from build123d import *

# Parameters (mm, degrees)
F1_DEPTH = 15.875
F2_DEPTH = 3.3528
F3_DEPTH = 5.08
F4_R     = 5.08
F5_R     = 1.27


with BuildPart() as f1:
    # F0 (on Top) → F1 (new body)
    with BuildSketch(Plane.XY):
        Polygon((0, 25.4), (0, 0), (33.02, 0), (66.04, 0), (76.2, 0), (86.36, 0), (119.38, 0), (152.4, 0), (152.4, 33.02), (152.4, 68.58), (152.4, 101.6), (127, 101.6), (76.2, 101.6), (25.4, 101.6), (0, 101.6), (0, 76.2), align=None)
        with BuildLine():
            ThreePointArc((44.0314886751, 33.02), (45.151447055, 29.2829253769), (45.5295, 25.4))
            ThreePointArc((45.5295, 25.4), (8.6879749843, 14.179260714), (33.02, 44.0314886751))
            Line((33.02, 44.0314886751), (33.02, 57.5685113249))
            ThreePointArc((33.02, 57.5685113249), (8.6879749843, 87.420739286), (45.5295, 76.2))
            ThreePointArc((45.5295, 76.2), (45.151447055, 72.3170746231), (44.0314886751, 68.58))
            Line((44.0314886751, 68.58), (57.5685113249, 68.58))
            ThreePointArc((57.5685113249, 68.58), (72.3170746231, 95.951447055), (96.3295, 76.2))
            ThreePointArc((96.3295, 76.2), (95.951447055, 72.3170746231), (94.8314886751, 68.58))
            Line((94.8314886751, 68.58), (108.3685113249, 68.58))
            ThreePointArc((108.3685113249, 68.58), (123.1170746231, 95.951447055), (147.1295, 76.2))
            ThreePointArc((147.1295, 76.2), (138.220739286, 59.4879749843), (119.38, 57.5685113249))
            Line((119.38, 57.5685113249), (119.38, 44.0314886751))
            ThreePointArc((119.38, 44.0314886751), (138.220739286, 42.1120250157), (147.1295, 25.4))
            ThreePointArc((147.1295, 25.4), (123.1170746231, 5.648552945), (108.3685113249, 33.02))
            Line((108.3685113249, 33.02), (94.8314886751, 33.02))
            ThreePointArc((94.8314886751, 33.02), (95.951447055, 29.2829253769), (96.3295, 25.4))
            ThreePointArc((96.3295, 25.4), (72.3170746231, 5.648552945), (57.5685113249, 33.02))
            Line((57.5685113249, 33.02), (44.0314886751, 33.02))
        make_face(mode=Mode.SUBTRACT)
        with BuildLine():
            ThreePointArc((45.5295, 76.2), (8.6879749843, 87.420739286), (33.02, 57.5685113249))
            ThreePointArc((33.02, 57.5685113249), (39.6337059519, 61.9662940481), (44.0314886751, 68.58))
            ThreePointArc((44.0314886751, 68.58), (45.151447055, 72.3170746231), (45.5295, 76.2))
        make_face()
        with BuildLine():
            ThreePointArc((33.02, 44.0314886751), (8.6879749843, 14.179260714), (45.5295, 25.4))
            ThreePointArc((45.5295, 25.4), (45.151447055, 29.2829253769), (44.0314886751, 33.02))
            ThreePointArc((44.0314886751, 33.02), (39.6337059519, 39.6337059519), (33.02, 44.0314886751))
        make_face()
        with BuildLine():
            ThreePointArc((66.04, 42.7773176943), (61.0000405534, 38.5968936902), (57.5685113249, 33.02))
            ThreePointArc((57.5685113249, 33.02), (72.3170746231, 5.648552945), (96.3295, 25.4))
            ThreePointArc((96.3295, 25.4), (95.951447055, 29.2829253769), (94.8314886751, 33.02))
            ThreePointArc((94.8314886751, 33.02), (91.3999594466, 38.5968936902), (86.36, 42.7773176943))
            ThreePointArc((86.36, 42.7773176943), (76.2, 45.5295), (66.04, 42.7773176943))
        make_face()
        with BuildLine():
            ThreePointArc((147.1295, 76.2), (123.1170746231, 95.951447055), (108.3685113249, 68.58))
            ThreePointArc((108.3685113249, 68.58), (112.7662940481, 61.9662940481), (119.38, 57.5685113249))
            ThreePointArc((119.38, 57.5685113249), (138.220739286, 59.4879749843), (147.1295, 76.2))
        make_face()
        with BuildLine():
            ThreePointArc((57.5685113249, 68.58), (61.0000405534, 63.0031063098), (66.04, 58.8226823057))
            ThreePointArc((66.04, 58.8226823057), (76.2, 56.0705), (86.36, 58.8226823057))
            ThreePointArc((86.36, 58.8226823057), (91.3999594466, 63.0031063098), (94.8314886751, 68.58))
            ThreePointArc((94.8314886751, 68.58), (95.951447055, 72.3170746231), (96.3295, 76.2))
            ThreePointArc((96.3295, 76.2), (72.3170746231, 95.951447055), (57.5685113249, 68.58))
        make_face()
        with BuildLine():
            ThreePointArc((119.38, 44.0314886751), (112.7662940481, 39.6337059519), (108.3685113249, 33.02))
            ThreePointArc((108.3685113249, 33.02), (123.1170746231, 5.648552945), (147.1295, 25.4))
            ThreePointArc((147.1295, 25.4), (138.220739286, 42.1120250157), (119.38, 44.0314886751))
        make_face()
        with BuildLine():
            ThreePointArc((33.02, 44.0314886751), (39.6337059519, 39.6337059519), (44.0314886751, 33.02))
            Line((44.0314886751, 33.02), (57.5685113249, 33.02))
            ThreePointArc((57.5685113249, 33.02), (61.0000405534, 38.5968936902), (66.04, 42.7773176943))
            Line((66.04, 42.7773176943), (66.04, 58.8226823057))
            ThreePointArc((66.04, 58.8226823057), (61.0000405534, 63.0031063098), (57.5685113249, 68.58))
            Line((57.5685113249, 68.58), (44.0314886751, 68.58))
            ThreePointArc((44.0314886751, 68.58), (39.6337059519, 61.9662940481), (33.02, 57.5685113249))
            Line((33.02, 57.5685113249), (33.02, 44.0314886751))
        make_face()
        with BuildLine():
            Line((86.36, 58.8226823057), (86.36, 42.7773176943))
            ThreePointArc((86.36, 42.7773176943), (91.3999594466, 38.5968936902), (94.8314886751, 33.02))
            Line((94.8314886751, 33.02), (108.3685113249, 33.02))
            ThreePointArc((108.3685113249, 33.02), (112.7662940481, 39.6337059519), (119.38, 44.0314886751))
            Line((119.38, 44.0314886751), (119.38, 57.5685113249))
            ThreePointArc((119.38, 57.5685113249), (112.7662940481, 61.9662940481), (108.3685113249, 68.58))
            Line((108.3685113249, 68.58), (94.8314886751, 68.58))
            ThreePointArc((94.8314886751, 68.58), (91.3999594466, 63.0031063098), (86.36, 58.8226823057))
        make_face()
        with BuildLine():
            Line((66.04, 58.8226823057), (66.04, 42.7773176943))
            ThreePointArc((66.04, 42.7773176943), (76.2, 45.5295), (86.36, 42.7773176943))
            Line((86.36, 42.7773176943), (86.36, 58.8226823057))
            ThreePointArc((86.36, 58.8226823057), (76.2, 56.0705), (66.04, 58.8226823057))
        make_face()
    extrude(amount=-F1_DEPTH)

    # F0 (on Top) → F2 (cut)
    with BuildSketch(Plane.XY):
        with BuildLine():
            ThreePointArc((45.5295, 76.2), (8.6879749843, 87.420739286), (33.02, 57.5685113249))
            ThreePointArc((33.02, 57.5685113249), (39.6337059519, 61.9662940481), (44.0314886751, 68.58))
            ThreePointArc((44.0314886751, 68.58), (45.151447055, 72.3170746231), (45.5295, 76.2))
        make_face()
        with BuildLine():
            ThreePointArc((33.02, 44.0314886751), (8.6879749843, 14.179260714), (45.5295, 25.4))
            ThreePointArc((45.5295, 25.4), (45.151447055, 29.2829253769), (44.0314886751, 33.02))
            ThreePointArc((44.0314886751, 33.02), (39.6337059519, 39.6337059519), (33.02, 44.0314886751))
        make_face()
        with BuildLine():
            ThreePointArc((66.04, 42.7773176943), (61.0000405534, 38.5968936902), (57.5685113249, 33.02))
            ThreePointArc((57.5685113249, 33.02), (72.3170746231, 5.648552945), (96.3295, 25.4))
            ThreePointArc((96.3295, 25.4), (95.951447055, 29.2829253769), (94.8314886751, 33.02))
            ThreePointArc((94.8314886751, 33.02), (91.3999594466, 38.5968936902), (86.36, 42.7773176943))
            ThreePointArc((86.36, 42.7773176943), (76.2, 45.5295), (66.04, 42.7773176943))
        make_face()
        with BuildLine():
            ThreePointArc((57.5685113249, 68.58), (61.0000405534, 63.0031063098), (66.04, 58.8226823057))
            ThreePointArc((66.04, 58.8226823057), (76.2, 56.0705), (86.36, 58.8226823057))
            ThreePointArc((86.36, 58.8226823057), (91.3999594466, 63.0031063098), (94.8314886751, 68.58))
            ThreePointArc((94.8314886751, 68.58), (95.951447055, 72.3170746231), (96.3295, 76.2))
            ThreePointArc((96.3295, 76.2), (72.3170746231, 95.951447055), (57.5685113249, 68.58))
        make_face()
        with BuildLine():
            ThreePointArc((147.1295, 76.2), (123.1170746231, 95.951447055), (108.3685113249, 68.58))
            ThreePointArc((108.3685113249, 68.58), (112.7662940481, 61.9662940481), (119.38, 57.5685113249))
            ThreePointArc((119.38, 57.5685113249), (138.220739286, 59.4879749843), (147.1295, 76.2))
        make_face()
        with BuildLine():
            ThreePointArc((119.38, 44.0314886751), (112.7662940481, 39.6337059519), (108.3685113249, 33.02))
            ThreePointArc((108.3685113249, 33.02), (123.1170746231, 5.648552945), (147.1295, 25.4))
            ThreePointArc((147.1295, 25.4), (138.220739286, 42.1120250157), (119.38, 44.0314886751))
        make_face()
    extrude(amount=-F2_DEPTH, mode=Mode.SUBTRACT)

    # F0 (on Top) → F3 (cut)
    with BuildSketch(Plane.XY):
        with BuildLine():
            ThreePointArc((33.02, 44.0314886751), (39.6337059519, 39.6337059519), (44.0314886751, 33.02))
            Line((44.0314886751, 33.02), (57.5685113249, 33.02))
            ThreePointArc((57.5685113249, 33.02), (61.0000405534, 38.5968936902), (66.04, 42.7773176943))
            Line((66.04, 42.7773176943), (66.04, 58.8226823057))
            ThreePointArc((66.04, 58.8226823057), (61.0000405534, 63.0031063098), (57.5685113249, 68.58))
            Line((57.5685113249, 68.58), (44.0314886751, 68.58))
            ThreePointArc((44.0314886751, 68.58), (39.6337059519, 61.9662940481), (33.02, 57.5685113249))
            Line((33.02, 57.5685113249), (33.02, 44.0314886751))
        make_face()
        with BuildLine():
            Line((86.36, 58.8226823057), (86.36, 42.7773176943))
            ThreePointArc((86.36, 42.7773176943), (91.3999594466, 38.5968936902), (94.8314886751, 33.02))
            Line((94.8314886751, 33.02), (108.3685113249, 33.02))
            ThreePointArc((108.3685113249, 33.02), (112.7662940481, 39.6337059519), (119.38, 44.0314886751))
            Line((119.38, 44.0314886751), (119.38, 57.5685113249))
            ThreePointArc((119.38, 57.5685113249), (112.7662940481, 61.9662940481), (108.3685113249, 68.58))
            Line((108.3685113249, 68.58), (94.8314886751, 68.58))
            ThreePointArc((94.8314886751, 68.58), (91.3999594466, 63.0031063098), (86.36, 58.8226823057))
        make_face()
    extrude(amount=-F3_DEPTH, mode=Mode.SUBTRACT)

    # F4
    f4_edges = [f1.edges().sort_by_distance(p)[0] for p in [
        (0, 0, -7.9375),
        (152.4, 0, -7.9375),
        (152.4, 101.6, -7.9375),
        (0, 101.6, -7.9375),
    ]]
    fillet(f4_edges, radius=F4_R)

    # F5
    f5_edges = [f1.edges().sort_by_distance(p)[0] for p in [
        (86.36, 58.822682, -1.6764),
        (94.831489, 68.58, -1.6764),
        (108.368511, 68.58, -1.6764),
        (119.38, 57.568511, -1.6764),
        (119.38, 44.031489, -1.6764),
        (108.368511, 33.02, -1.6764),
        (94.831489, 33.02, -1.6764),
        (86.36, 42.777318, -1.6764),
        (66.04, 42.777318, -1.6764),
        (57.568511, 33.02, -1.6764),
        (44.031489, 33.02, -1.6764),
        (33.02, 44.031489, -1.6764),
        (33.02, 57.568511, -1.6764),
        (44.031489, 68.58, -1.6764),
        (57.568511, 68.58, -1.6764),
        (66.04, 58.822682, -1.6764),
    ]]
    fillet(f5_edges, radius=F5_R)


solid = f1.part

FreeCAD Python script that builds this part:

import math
import FreeCAD as App
import Part
import Sketcher
from FreeCAD import Vector
Q = App.Units.Quantity


def edges_at(feature, points):
    """Names of the edges that pass closest to the given points."""
    edges = feature.Shape.Edges
    near = lambda p: min(range(len(edges)), key=lambda i: edges[i].distToShape(Part.Vertex(*p))[0])
    return sorted({f"Edge{near(p) + 1}" for p in points})

doc = App.newDocument("Part")
params = doc.addObject("Spreadsheet::Sheet", "Params")
for row, (alias, value) in enumerate([
    ("sketch1_width", "6 in"),
    ("sketch1_height", "4 in"),
    ("pad1_length", "0.625 in"),
    ("pocket1_length", "0.132 in"),
    ("pocket2_length", "0.2 in"),
    ("fillet_radius", "0.2 in"),
    ("fillet2_radius", "0.05 in"),
], start=1):
    params.set(f"A{row}", alias)
    params.set(f"B{row}", "=" + value)
    params.setAlias(f"B{row}", alias)

body = doc.addObject("PartDesign::Body", "Body")

sketch1 = body.newObject("Sketcher::SketchObject", "Sketch")
sketch1.AttachmentSupport = (doc.getObject("XY_Plane"), [""])
sketch1.MapMode = "FlatFace"
sketch1.addGeometry(Part.LineSegment(Vector(0, 0, 0), Vector(152, 0, 0)), False)
sketch1.addGeometry(Part.LineSegment(Vector(152, 0, 0), Vector(152, 102, 0)), False)
sketch1.addGeometry(Part.LineSegment(Vector(152, 102, 0), Vector(0, 102, 0)), False)
sketch1.addGeometry(Part.LineSegment(Vector(0, 102, 0), Vector(0, 0, 0)), False)
sketch1.addConstraint(Sketcher.Constraint("Coincident", 0, 2, 1, 1))
sketch1.addConstraint(Sketcher.Constraint("Coincident", 1, 2, 2, 1))
sketch1.addConstraint(Sketcher.Constraint("Coincident", 2, 2, 3, 1))
sketch1.addConstraint(Sketcher.Constraint("Coincident", 3, 2, 0, 1))
sketch1.addConstraint(Sketcher.Constraint("Horizontal", 0))
sketch1.addConstraint(Sketcher.Constraint("Vertical", 1))
sketch1.addConstraint(Sketcher.Constraint("Horizontal", 2))
sketch1.addConstraint(Sketcher.Constraint("Vertical", 3))
sketch1.addConstraint(Sketcher.Constraint("Coincident", 3, 2, -1, 1))
sketch1.addConstraint(Sketcher.Constraint("DistanceX", 0, 1, 0, 2, Q("6 in")))
sketch1.addConstraint(Sketcher.Constraint("DistanceY", 1, 1, 1, 2, Q("4 in")))
sketch1.setExpression("Constraints[9]", "Params.sketch1_width")
sketch1.setExpression("Constraints[10]", "Params.sketch1_height")
pad1 = body.newObject("PartDesign::Pad", "Pad")
pad1.Profile = sketch1
pad1.setExpression("Length", "Params.pad1_length")
pad1.Reversed = True

sketch2 = body.newObject("Sketcher::SketchObject", "Sketch001")
sketch2.AttachmentSupport = (doc.getObject("XY_Plane"), [""])
sketch2.MapMode = "FlatFace"
sketch2.addGeometry(Part.ArcOfCircle(Part.Circle(Vector(25, 76, 0), Vector(0, 0, 1), 20), math.radians(0), math.radians(338)), False)
sketch2.addGeometry(Part.ArcOfCircle(Part.Circle(Vector(25, 76, 0), Vector(0, 0, 1), 20), math.radians(-22), math.radians(0)), False)
sketch2.addGeometry(Part.ArcOfCircle(Part.Circle(Vector(25, 25, 0), Vector(0, 0, 1), 20), math.radians(0), math.radians(22)), False)
sketch2.addGeometry(Part.ArcOfCircle(Part.Circle(Vector(25, 25, 0), Vector(0, 0, 1), 20), math.radians(22), math.radians(360)), False)
sketch2.addGeometry(Part.ArcOfCircle(Part.Circle(Vector(76, 25, 0), Vector(0, 0, 1), 20), math.radians(120), math.radians(158)), False)
sketch2.addGeometry(Part.ArcOfCircle(Part.Circle(Vector(76, 25, 0), Vector(0, 0, 1), 20), math.radians(158), math.radians(360)), False)
sketch2.addGeometry(Part.ArcOfCircle(Part.Circle(Vector(76, 25, 0), Vector(0, 0, 1), 20), math.radians(0), math.radians(22)), False)
sketch2.addGeometry(Part.ArcOfCircle(Part.Circle(Vector(76, 25, 0), Vector(0, 0, 1), 20), math.radians(22), math.radians(60)), False)
sketch2.addGeometry(Part.ArcOfCircle(Part.Circle(Vector(76, 25, 0), Vector(0, 0, 1), 20), math.radians(60), math.radians(120)), False)
sketch2.addGeometry(Part.ArcOfCircle(Part.Circle(Vector(76, 76, 0), Vector(0, 0, 1), 20), math.radians(-158), math.radians(-120)), False)
sketch2.addGeometry(Part.ArcOfCircle(Part.Circle(Vector(76, 76, 0), Vector(0, 0, 1), 20), math.radians(-120), math.radians(-60)), False)
sketch2.addGeometry(Part.ArcOfCircle(Part.Circle(Vector(76, 76, 0), Vector(0, 0, 1), 20), math.radians(-60), math.radians(-22)), False)
sketch2.addGeometry(Part.ArcOfCircle(Part.Circle(Vector(76, 76, 0), Vector(0, 0, 1), 20), math.radians(-22), math.radians(0)), False)
sketch2.addGeometry(Part.ArcOfCircle(Part.Circle(Vector(76, 76, 0), Vector(0, 0, 1), 20), math.radians(0), math.radians(202)), False)
sketch2.addGeometry(Part.ArcOfCircle(Part.Circle(Vector(127, 76, 0), Vector(0, 0, 1), 20), math.radians(0), math.radians(202)), False)
sketch2.addGeometry(Part.ArcOfCircle(Part.Circle(Vector(127, 76, 0), Vector(0, 0, 1), 20), math.radians(-158), math.radians(-112)), False)
sketch2.addGeometry(Part.ArcOfCircle(Part.Circle(Vector(127, 76, 0), Vector(0, 0, 1), 20), math.radians(-112), math.radians(0)), False)
sketch2.addGeometry(Part.ArcOfCircle(Part.Circle(Vector(127, 25, 0), Vector(0, 0, 1), 20), math.radians(112), math.radians(158)), False)
sketch2.addGeometry(Part.ArcOfCircle(Part.Circle(Vector(127, 25, 0), Vector(0, 0, 1), 20), math.radians(158), math.radians(360)), False)
sketch2.addGeometry(Part.ArcOfCircle(Part.Circle(Vector(127, 25, 0), Vector(0, 0, 1), 20), math.radians(0), math.radians(112)), False)
sketch2.addConstraint(Sketcher.Constraint("Tangent", 0, 1, 1, 2))
sketch2.addConstraint(Sketcher.Constraint("Coincident", 1, 1, 0, 2))
sketch2.addConstraint(Sketcher.Constraint("Tangent", 2, 1, 3, 2))
sketch2.addConstraint(Sketcher.Constraint("Coincident", 3, 1, 2, 2))
sketch2.addConstraint(Sketcher.Constraint("Tangent", 4, 2, 5, 1))
sketch2.addConstraint(Sketcher.Constraint("Tangent", 5, 2, 6, 1))
sketch2.addConstraint(Sketcher.Constraint("Tangent", 6, 2, 7, 1))
sketch2.addConstraint(Sketcher.Constraint("Tangent", 7, 2, 8, 1))
sketch2.addConstraint(Sketcher.Constraint("Tangent", 8, 2, 4, 1))
sketch2.addConstraint(Sketcher.Constraint("Tangent", 9, 2, 10, 1))
sketch2.addConstraint(Sketcher.Constraint("Tangent", 10, 2, 11, 1))
sketch2.addConstraint(Sketcher.Constraint("Tangent", 11, 2, 12, 1))
sketch2.addConstraint(Sketcher.Constraint("Tangent", 12, 2, 13, 1))
sketch2.addConstraint(Sketcher.Constraint("Tangent", 13, 2, 9, 1))
sketch2.addConstraint(Sketcher.Constraint("Tangent", 14, 2, 15, 1))
sketch2.addConstraint(Sketcher.Constraint("Tangent", 15, 2, 16, 1))
sketch2.addConstraint(Sketcher.Constraint("Tangent", 16, 2, 14, 1))
sketch2.addConstraint(Sketcher.Constraint("Tangent", 17, 2, 18, 1))
sketch2.addConstraint(Sketcher.Constraint("Tangent", 18, 2, 19, 1))
sketch2.addConstraint(Sketcher.Constraint("Tangent", 19, 2, 17, 1))
sketch2.addConstraint(Sketcher.Constraint("Coincident", 6, 3, 4, 3))
sketch2.addConstraint(Sketcher.Constraint("Coincident", 11, 3, 9, 3))
sketch2.addConstraint(Sketcher.Constraint("Equal", 1, 2))
sketch2.addConstraint(Sketcher.Constraint("Equal", 3, 4))
sketch2.addConstraint(Sketcher.Constraint("Equal", 8, 9))
sketch2.addConstraint(Sketcher.Constraint("Equal", 13, 14))
sketch2.addConstraint(Sketcher.Constraint("Equal", 16, 17))
sketch2.addConstraint(Sketcher.Constraint("Horizontal", 3, 3, 4, 3))
sketch2.addConstraint(Sketcher.Constraint("Horizontal", 1, 3, 9, 3))
sketch2.addConstraint(Sketcher.Constraint("Horizontal", 13, 3, 14, 3))
sketch2.addConstraint(Sketcher.Constraint("Horizontal", 8, 3, 17, 3))
sketch2.addConstraint(Sketcher.Constraint("Horizontal", 16, 3, 0, 1))
sketch2.addConstraint(Sketcher.Constraint("Horizontal", 19, 3, 2, 1))
sketch2.addConstraint(Sketcher.Constraint("Horizontal", 3, 1, 4, 2))
sketch2.addConstraint(Sketcher.Constraint("Horizontal", 2, 1, 5, 2))
sketch2.addConstraint(Sketcher.Constraint("Horizontal", 4, 2, 6, 2))
sketch2.addConstraint(Sketcher.Constraint("Horizontal", 7, 2, 8, 2))
sketch2.addConstraint(Sketcher.Constraint("Horizontal", 9, 2, 10, 2))
sketch2.addConstraint(Sketcher.Constraint("Horizontal", 1, 1, 11, 2))
sketch2.addConstraint(Sketcher.Constraint("Horizontal", 0, 1, 12, 2))
sketch2.addConstraint(Sketcher.Constraint("Horizontal", 11, 2, 13, 2))
sketch2.addConstraint(Sketcher.Constraint("Horizontal", 13, 2, 14, 2))
sketch2.addConstraint(Sketcher.Constraint("Horizontal", 12, 2, 16, 2))
sketch2.addConstraint(Sketcher.Constraint("Horizontal", 6, 2, 17, 2))
sketch2.addConstraint(Sketcher.Constraint("Horizontal", 5, 2, 18, 2))
sketch2.addConstraint(Sketcher.Constraint("Vertical", 1, 3, 2, 3))
sketch2.addConstraint(Sketcher.Constraint("Vertical", 8, 3, 9, 3))
sketch2.addConstraint(Sketcher.Constraint("Vertical", 16, 3, 17, 3))
sketch2.addConstraint(Sketcher.Constraint("Vertical", 1, 1, 3, 1))
sketch2.addConstraint(Sketcher.Constraint("Vertical", 8, 2, 9, 2))
sketch2.addConstraint(Sketcher.Constraint("Vertical", 15, 2, 19, 2))
sketch2.addConstraint(Sketcher.Constraint("DistanceX", -1, 1, 0, 3, Q("1 in")))
sketch2.addConstraint(Sketcher.Constraint("DistanceY", -1, 1, 0, 3, Q("3 in")))
sketch2.addConstraint(Sketcher.Constraint("DistanceY", -1, 1, 2, 3, Q("1 in")))
sketch2.addConstraint(Sketcher.Constraint("DistanceX", -1, 1, 4, 3, Q("3 in")))
sketch2.addConstraint(Sketcher.Constraint("DistanceX", -1, 1, 14, 3, Q("5 in")))
sketch2.addConstraint(Sketcher.Constraint("DistanceY", -1, 1, 1, 1, Q("2.7 in")))
sketch2.addConstraint(Sketcher.Constraint("DistanceX", -1, 1, 7, 2, Q("3.4 in")))
sketch2.addConstraint(Sketcher.Constraint("DistanceX", -1, 1, 15, 2, Q("4.7 in")))
sketch2.addConstraint(Sketcher.Constraint("Radius", 0, Q("0.7925 in")))
pocket1 = body.newObject("PartDesign::Pocket", "Pocket")
pocket1.Profile = sketch2
pocket1.setExpression("Length", "Params.pocket1_length")

sketch3 = body.newObject("Sketcher::SketchObject", "Sketch002")
sketch3.AttachmentSupport = (doc.getObject("XY_Plane"), [""])
sketch3.MapMode = "FlatFace"
sketch3.addGeometry(Part.ArcOfCircle(Part.Circle(Vector(25, 25, 0), Vector(0, 0, 1), 20), math.radians(22), math.radians(68)), False)
sketch3.addGeometry(Part.LineSegment(Vector(44, 33, 0), Vector(58, 33, 0)), False)
sketch3.addGeometry(Part.ArcOfCircle(Part.Circle(Vector(76, 25, 0), Vector(0, 0, 1), 20), math.radians(120), math.radians(158)), False)
sketch3.addGeometry(Part.LineSegment(Vector(66, 43, 0), Vector(66, 59, 0)), False)
sketch3.addGeometry(Part.ArcOfCircle(Part.Circle(Vector(76, 76, 0), Vector(0, 0, 1), 20), math.radians(-158), math.radians(-120)), False)
sketch3.addGeometry(Part.LineSegment(Vector(58, 69, 0), Vector(44, 69, 0)), False)
sketch3.addGeometry(Part.ArcOfCircle(Part.Circle(Vector(25, 76, 0), Vector(0, 0, 1), 20), math.radians(-68), math.radians(-22)), False)
sketch3.addGeometry(Part.LineSegment(Vector(33, 58, 0), Vector(33, 44, 0)), False)
sketch3.addGeometry(Part.LineSegment(Vector(86, 59, 0), Vector(86, 43, 0)), False)
sketch3.addGeometry(Part.ArcOfCircle(Part.Circle(Vector(76, 25, 0), Vector(0, 0, 1), 20), math.radians(22), math.radians(60)), False)
sketch3.addGeometry(Part.LineSegment(Vector(95, 33, 0), Vector(108, 33, 0)), False)
sketch3.addGeometry(Part.ArcOfCircle(Part.Circle(Vector(127, 25, 0), Vector(0, 0, 1), 20), math.radians(112), math.radians(158)), False)
sketch3.addGeometry(Part.LineSegment(Vector(119, 44, 0), Vector(119, 58, 0)), False)
sketch3.addGeometry(Part.ArcOfCircle(Part.Circle(Vector(127, 76, 0), Vector(0, 0, 1), 20), math.radians(-158), math.radians(-112)), False)
sketch3.addGeometry(Part.LineSegment(Vector(108, 69, 0), Vector(95, 69, 0)), False)
sketch3.addGeometry(Part.ArcOfCircle(Part.Circle(Vector(76, 76, 0), Vector(0, 0, 1), 20), math.radians(-60), math.radians(-22)), False)
sketch3.addConstraint(Sketcher.Constraint("Coincident", 0, 1, 1, 1))
sketch3.addConstraint(Sketcher.Constraint("Coincident", 1, 2, 2, 2))
sketch3.addConstraint(Sketcher.Constraint("Coincident", 2, 1, 3, 1))
sketch3.addConstraint(Sketcher.Constraint("Coincident", 3, 2, 4, 2))
sketch3.addConstraint(Sketcher.Constraint("Coincident", 4, 1, 5, 1))
sketch3.addConstraint(Sketcher.Constraint("Coincident", 5, 2, 6, 2))
sketch3.addConstraint(Sketcher.Constraint("Coincident", 6, 1, 7, 1))
sketch3.addConstraint(Sketcher.Constraint("Coincident", 7, 2, 0, 2))
sketch3.addConstraint(Sketcher.Constraint("Coincident", 8, 2, 9, 2))
sketch3.addConstraint(Sketcher.Constraint("Coincident", 9, 1, 10, 1))
sketch3.addConstraint(Sketcher.Constraint("Coincident", 10, 2, 11, 2))
sketch3.addConstraint(Sketcher.Constraint("Coincident", 11, 1, 12, 1))
sketch3.addConstraint(Sketcher.Constraint("Coincident", 12, 2, 13, 2))
sketch3.addConstraint(Sketcher.Constraint("Coincident", 13, 1, 14, 1))
sketch3.addConstraint(Sketcher.Constraint("Coincident", 14, 2, 15, 2))
sketch3.addConstraint(Sketcher.Constraint("Coincident", 15, 1, 8, 1))
sketch3.addConstraint(Sketcher.Constraint("Horizontal", 1))
sketch3.addConstraint(Sketcher.Constraint("Vertical", 3))
sketch3.addConstraint(Sketcher.Constraint("Horizontal", 5))
sketch3.addConstraint(Sketcher.Constraint("Vertical", 7))
sketch3.addConstraint(Sketcher.Constraint("Vertical", 8))
sketch3.addConstraint(Sketcher.Constraint("Horizontal", 10))
sketch3.addConstraint(Sketcher.Constraint("Vertical", 12))
sketch3.addConstraint(Sketcher.Constraint("Horizontal", 14))
sketch3.addConstraint(Sketcher.Constraint("Coincident", 9, 3, 2, 3))
sketch3.addConstraint(Sketcher.Constraint("Coincident", 15, 3, 4, 3))
sketch3.addConstraint(Sketcher.Constraint("Equal", 0, 2))
sketch3.addConstraint(Sketcher.Constraint("Equal", 2, 4))
sketch3.addConstraint(Sketcher.Constraint("Equal", 4, 6))
sketch3.addConstraint(Sketcher.Constraint("Equal", 6, 9))
sketch3.addConstraint(Sketcher.Constraint("Equal", 9, 11))
sketch3.addConstraint(Sketcher.Constraint("Equal", 11, 13))
sketch3.addConstraint(Sketcher.Constraint("Equal", 13, 15))
sketch3.addConstraint(Sketcher.Constraint("Horizontal", 0, 3, 2, 3))
sketch3.addConstraint(Sketcher.Constraint("Horizontal", 4, 3, 6, 3))
sketch3.addConstraint(Sketcher.Constraint("Horizontal", 9, 3, 11, 3))
sketch3.addConstraint(Sketcher.Constraint("Horizontal", 6, 3, 13, 3))
sketch3.addConstraint(Sketcher.Constraint("Horizontal", 2, 1, 8, 2))
sketch3.addConstraint(Sketcher.Constraint("Horizontal", 1, 2, 9, 1))
sketch3.addConstraint(Sketcher.Constraint("Horizontal", 7, 2, 11, 1))
sketch3.addConstraint(Sketcher.Constraint("Horizontal", 6, 1, 12, 2))
sketch3.addConstraint(Sketcher.Constraint("Horizontal", 5, 2, 13, 1))
sketch3.addConstraint(Sketcher.Constraint("Horizontal", 3, 2, 15, 1))
sketch3.addConstraint(Sketcher.Constraint("Vertical", 0, 3, 6, 3))
sketch3.addConstraint(Sketcher.Constraint("Vertical", 1, 2, 4, 1))
sketch3.addConstraint(Sketcher.Constraint("Equal", 5, 10))
sketch3.addConstraint(Sketcher.Constraint("Equal", 14, 7))
sketch3.addConstraint(Sketcher.Constraint("DistanceX", -1, 1, 0, 3, Q("1 in")))
sketch3.addConstraint(Sketcher.Constraint("DistanceY", -1, 1, 0, 3, Q("1 in")))
sketch3.addConstraint(Sketcher.Constraint("DistanceX", -1, 1, 2, 3, Q("3 in")))
sketch3.addConstraint(Sketcher.Constraint("DistanceY", -1, 1, 4, 3, Q("3 in")))
sketch3.addConstraint(Sketcher.Constraint("DistanceY", -1, 1, 0, 1, Q("1.3 in")))
sketch3.addConstraint(Sketcher.Constraint("DistanceX", -1, 1, 2, 1, Q("2.6 in")))
sketch3.addConstraint(Sketcher.Constraint("Radius", 0, Q("0.7925 in")))
pocket2 = body.newObject("PartDesign::Pocket", "Pocket001")
pocket2.Profile = sketch3
pocket2.setExpression("Length", "Params.pocket2_length")
doc.recompute()

fillet = body.newObject("PartDesign::Fillet", "Fillet")
fillet.Base = (pocket2, edges_at(pocket2, [
    (0, 0, -7.938),
    (152.4, 0, -7.938),
    (152.4, 101.6, -7.938),
    (0, 101.6, -7.938),
]))
fillet.setExpression("Radius", "Params.fillet_radius")
doc.recompute()

fillet2 = body.newObject("PartDesign::Fillet", "Fillet001")
fillet2.Base = (fillet, edges_at(fillet, [
    (86.36, 58.823, -1.676),
    (94.831, 68.58, -1.676),
    (108.369, 68.58, -1.676),
    (119.38, 57.569, -1.676),
    (119.38, 44.031, -1.676),
    (108.369, 33.02, -1.676),
    (94.831, 33.02, -1.676),
    (86.36, 42.777, -1.676),
    (66.04, 42.777, -1.676),
    (57.569, 33.02, -1.676),
    (44.031, 33.02, -1.676),
    (33.02, 44.031, -1.676),
    (33.02, 57.569, -1.676),
    (44.031, 68.58, -1.676),
    (57.569, 68.58, -1.676),
    (66.04, 58.823, -1.676),
]))
fillet2.setExpression("Radius", "Params.fillet2_radius")

doc.recompute()
